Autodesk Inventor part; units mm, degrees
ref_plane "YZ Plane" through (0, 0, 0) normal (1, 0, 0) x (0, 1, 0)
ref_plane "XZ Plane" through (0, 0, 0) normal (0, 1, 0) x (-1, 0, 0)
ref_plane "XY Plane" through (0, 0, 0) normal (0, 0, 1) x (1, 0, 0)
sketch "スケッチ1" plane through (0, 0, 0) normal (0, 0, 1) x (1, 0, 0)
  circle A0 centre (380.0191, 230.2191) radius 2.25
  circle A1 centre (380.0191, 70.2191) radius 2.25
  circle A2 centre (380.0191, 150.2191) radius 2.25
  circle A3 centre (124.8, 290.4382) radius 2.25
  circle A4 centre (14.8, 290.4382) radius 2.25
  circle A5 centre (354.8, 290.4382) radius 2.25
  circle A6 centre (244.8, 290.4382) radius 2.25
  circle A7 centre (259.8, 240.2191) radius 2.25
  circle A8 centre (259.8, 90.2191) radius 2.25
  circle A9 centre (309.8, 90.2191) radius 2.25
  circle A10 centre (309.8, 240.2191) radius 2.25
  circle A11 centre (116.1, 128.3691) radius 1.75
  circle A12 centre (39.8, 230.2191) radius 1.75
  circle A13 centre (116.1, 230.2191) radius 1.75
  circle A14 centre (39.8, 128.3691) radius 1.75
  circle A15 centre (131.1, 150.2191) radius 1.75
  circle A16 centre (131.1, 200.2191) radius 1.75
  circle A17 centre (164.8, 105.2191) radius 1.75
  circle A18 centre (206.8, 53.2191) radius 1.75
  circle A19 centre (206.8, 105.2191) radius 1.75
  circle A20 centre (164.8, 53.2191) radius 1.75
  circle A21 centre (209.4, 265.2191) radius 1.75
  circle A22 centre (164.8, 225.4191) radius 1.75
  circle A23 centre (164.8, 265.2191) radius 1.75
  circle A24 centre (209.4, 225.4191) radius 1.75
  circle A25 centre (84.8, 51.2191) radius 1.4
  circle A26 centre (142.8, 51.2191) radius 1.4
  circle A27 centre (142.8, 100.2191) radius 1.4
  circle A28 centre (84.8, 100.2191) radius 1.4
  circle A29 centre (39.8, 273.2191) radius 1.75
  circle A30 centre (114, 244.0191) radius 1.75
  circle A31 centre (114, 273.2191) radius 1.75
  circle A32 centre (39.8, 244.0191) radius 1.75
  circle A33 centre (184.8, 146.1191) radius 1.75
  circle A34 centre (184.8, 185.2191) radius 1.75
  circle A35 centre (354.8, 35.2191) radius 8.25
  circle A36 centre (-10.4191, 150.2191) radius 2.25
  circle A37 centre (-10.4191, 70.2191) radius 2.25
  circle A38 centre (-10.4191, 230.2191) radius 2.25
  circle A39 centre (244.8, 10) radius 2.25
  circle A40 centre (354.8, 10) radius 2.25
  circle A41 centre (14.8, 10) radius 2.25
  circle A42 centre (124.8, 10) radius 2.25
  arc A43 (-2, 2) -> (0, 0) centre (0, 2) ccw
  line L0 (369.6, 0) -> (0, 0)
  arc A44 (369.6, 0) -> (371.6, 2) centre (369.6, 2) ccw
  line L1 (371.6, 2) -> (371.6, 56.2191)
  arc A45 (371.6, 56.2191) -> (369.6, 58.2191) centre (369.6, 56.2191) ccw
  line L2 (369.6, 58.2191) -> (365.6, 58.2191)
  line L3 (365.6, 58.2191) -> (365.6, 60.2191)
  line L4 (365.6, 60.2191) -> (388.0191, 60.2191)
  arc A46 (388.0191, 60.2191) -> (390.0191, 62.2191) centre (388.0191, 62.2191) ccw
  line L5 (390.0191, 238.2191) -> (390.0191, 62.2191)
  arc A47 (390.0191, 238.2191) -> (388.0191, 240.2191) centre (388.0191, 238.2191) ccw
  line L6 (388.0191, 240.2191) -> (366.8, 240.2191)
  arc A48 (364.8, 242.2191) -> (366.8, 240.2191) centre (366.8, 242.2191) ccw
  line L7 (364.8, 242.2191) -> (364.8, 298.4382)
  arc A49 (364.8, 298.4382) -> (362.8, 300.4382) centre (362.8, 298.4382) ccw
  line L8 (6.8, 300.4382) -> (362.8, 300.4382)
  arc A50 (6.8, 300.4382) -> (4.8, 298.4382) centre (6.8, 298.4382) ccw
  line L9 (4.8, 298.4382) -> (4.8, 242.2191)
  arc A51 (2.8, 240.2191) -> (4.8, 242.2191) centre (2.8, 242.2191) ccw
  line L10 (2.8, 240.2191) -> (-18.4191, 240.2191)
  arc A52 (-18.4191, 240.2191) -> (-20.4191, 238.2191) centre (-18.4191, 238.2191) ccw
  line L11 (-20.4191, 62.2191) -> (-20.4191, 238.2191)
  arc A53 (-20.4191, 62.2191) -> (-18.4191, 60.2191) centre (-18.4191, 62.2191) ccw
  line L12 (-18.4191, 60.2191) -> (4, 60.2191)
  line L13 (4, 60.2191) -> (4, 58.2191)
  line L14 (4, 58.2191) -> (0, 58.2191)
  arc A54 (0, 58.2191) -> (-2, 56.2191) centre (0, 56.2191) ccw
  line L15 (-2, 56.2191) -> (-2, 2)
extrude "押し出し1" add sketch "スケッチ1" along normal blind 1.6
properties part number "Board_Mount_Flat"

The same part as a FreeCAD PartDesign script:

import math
import FreeCAD as App
import Part
import Sketcher

V = App.Vector
Q = App.Units.Quantity

doc = App.newDocument("Part")
body = doc.addObject("PartDesign::Body", "Body")

sketch1 = doc.addObject("Sketcher::SketchObject", "Sketch")
body.addObject(sketch1)
sketch1.AttachmentSupport = (doc.XY_Plane, [""])
sketch1.MapMode = "FlatFace"
sketch1.addGeometry([
    Part.LineSegment(V(-2, 56.2191, 0), V(-2, 2, 0)),
    Part.ArcOfCircle(Part.Circle(V(0, 2, 0), V(0, 0, 1), 2), math.radians(180), math.radians(270)),
    Part.LineSegment(V(0, 0, 0), V(369.6, 0, 0)),
    Part.ArcOfCircle(Part.Circle(V(369.6, 2, 0), V(0, 0, 1), 2), math.radians(-90), math.radians(0)),
    Part.LineSegment(V(371.6, 2, 0), V(371.6, 56.2191, 0)),
    Part.ArcOfCircle(Part.Circle(V(369.6, 56.2191, 0), V(0, 0, 1), 2), math.radians(0), math.radians(90)),
    Part.LineSegment(V(369.6, 58.2191, 0), V(365.6, 58.2191, 0)),
    Part.LineSegment(V(365.6, 58.2191, 0), V(365.6, 60.2191, 0)),
    Part.LineSegment(V(365.6, 60.2191, 0), V(388.0191, 60.2191, 0)),
    Part.ArcOfCircle(Part.Circle(V(388.0191, 62.2191, 0), V(0, 0, 1), 2), math.radians(-90), math.radians(0)),
    Part.LineSegment(V(390.0191, 62.2191, 0), V(390.0191, 238.2191, 0)),
    Part.ArcOfCircle(Part.Circle(V(388.0191, 238.2191, 0), V(0, 0, 1), 2), math.radians(0), math.radians(90)),
    Part.LineSegment(V(388.0191, 240.2191, 0), V(366.8, 240.2191, 0)),
    Part.ArcOfCircle(Part.Circle(V(366.8, 242.2191, 0), V(0, 0, 1), 2), math.radians(180), math.radians(270)),
    Part.LineSegment(V(364.8, 242.2191, 0), V(364.8, 298.4382, 0)),
    Part.ArcOfCircle(Part.Circle(V(362.8, 298.4382, 0), V(0, 0, 1), 2), math.radians(0), math.radians(90)),
    Part.LineSegment(V(362.8, 300.4382, 0), V(6.8, 300.4382, 0)),
    Part.ArcOfCircle(Part.Circle(V(6.8, 298.4382, 0), V(0, 0, 1), 2), math.radians(90), math.radians(180)),
    Part.LineSegment(V(4.8, 298.4382, 0), V(4.8, 242.2191, 0)),
    Part.ArcOfCircle(Part.Circle(V(2.8, 242.2191, 0), V(0, 0, 1), 2), math.radians(-90), math.radians(0)),
    Part.LineSegment(V(2.8, 240.2191, 0), V(-18.4191, 240.2191, 0)),
    Part.ArcOfCircle(Part.Circle(V(-18.4191, 238.2191, 0), V(0, 0, 1), 2), math.radians(90), math.radians(180)),
    Part.LineSegment(V(-20.4191, 238.2191, 0), V(-20.4191, 62.2191, 0)),
    Part.ArcOfCircle(Part.Circle(V(-18.4191, 62.2191, 0), V(0, 0, 1), 2), math.radians(180), math.radians(270)),
    Part.LineSegment(V(-18.4191, 60.2191, 0), V(4, 60.2191, 0)),
    Part.LineSegment(V(4, 60.2191, 0), V(4, 58.2191, 0)),
    Part.LineSegment(V(4, 58.2191, 0), V(0, 58.2191, 0)),
    Part.ArcOfCircle(Part.Circle(V(0, 56.2191, 0), V(0, 0, 1), 2), math.radians(90), math.radians(180)),
    Part.Circle(V(14.8, 10, 0), V(0, 0, 1), 2.25),
    Part.Circle(V(-10.4191, 70.2191, 0), V(0, 0, 1), 2.25),
    Part.Circle(V(124.8, 10, 0), V(0, 0, 1), 2.25),
    Part.Circle(V(84.8, 51.2191, 0), V(0, 0, 1), 1.4),
    Part.Circle(V(142.8, 51.2191, 0), V(0, 0, 1), 1.4),
    Part.Circle(V(164.8, 53.2191, 0), V(0, 0, 1), 1.75),
    Part.Circle(V(39.8, 128.3691, 0), V(0, 0, 1), 1.75),
    Part.Circle(V(84.8, 100.2191, 0), V(0, 0, 1), 1.4),
    Part.Circle(V(142.8, 100.2191, 0), V(0, 0, 1), 1.4),
    Part.Circle(V(164.8, 105.2191, 0), V(0, 0, 1), 1.75),
    Part.Circle(V(116.1, 128.3691, 0), V(0, 0, 1), 1.75),
    Part.Circle(V(244.8, 10, 0), V(0, 0, 1), 2.25),
    Part.Circle(V(206.8, 53.2191, 0), V(0, 0, 1), 1.75),
    Part.Circle(V(354.8, 10, 0), V(0, 0, 1), 2.25),
    Part.Circle(V(354.8, 35.2191, 0), V(0, 0, 1), 8.25),
    Part.Circle(V(380.0191, 70.2191, 0), V(0, 0, 1), 2.25),
    Part.Circle(V(206.8, 105.2191, 0), V(0, 0, 1), 1.75),
    Part.Circle(V(259.8, 90.2191, 0), V(0, 0, 1), 2.25),
    Part.Circle(V(184.8, 146.1191, 0), V(0, 0, 1), 1.75),
    Part.Circle(V(309.8, 90.2191, 0), V(0, 0, 1), 2.25),
    Part.Circle(V(-10.4191, 150.2191, 0), V(0, 0, 1), 2.25),
    Part.Circle(V(131.1, 150.2191, 0), V(0, 0, 1), 1.75),
    Part.Circle(V(131.1, 200.2191, 0), V(0, 0, 1), 1.75),
    Part.Circle(V(-10.4191, 230.2191, 0), V(0, 0, 1), 2.25),
    Part.Circle(V(39.8, 230.2191, 0), V(0, 0, 1), 1.75),
    Part.Circle(V(39.8, 244.0191, 0), V(0, 0, 1), 1.75),
    Part.Circle(V(14.8, 290.4382, 0), V(0, 0, 1), 2.25),
    Part.Circle(V(39.8, 273.2191, 0), V(0, 0, 1), 1.75),
    Part.Circle(V(116.1, 230.2191, 0), V(0, 0, 1), 1.75),
    Part.Circle(V(114, 244.0191, 0), V(0, 0, 1), 1.75),
    Part.Circle(V(164.8, 225.4191, 0), V(0, 0, 1), 1.75),
    Part.Circle(V(114, 273.2191, 0), V(0, 0, 1), 1.75),
    Part.Circle(V(124.8, 290.4382, 0), V(0, 0, 1), 2.25),
    Part.Circle(V(164.8, 265.2191, 0), V(0, 0, 1), 1.75),
    Part.Circle(V(184.8, 185.2191, 0), V(0, 0, 1), 1.75),
    Part.Circle(V(380.0191, 150.2191, 0), V(0, 0, 1), 2.25),
    Part.Circle(V(209.4, 225.4191, 0), V(0, 0, 1), 1.75),
    Part.Circle(V(259.8, 240.2191, 0), V(0, 0, 1), 2.25),
    Part.Circle(V(209.4, 265.2191, 0), V(0, 0, 1), 1.75),
    Part.Circle(V(244.8, 290.4382, 0), V(0, 0, 1), 2.25),
    Part.Circle(V(309.8, 240.2191, 0), V(0, 0, 1), 2.25),
    Part.Circle(V(380.0191, 230.2191, 0), V(0, 0, 1), 2.25),
    Part.Circle(V(354.8, 290.4382, 0), V(0, 0, 1), 2.25),
], False)
sketch1.addConstraint([
    Sketcher.Constraint("Tangent", 0, 2, 1, 1),
    Sketcher.Constraint("Tangent", 1, 2, 2, 1),
    Sketcher.Constraint("Tangent", 2, 2, 3, 1),
    Sketcher.Constraint("Tangent", 3, 2, 4, 1),
    Sketcher.Constraint("Tangent", 4, 2, 5, 1),
    Sketcher.Constraint("Tangent", 5, 2, 6, 1),
    Sketcher.Constraint("Coincident", 6, 2, 7, 1),
    Sketcher.Constraint("Coincident", 7, 2, 8, 1),
    Sketcher.Constraint("Tangent", 8, 2, 9, 1),
    Sketcher.Constraint("Tangent", 9, 2, 10, 1),
    Sketcher.Constraint("Tangent", 10, 2, 11, 1),
    Sketcher.Constraint("Tangent", 11, 2, 12, 1),
    Sketcher.Constraint("Tangent", 12, 2, 13, 2),
    Sketcher.Constraint("Tangent", 13, 1, 14, 1),
    Sketcher.Constraint("Tangent", 14, 2, 15, 1),
    Sketcher.Constraint("Tangent", 15, 2, 16, 1),
    Sketcher.Constraint("Tangent", 16, 2, 17, 1),
    Sketcher.Constraint("Tangent", 17, 2, 18, 1),
    Sketcher.Constraint("Tangent", 18, 2, 19, 2),
    Sketcher.Constraint("Tangent", 19, 1, 20, 1),
    Sketcher.Constraint("Tangent", 20, 2, 21, 1),
    Sketcher.Constraint("Tangent", 21, 2, 22, 1),
    Sketcher.Constraint("Tangent", 22, 2, 23, 1),
    Sketcher.Constraint("Tangent", 23, 2, 24, 1),
    Sketcher.Constraint("Coincident", 24, 2, 25, 1),
    Sketcher.Constraint("Coincident", 25, 2, 26, 1),
    Sketcher.Constraint("Tangent", 26, 2, 27, 1),
    Sketcher.Constraint("Tangent", 27, 2, 0, 1),
    Sketcher.Constraint("Vertical", 0),
    Sketcher.Constraint("Horizontal", 2),
    Sketcher.Constraint("Vertical", 4),
    Sketcher.Constraint("Horizontal", 6),
    Sketcher.Constraint("Vertical", 7),
    Sketcher.Constraint("Horizontal", 8),
    Sketcher.Constraint("Vertical", 10),
    Sketcher.Constraint("Horizontal", 12),
    Sketcher.Constraint("Vertical", 14),
    Sketcher.Constraint("Horizontal", 16),
    Sketcher.Constraint("Vertical", 18),
    Sketcher.Constraint("Horizontal", 20),
    Sketcher.Constraint("Vertical", 22),
    Sketcher.Constraint("Horizontal", 24),
    Sketcher.Constraint("Vertical", 25),
    Sketcher.Constraint("Horizontal", 26),
    Sketcher.Constraint("Coincident", 1, 2, -1, 1),
    Sketcher.Constraint("Equal", 1, 3),
    Sketcher.Constraint("Equal", 3, 5),
    Sketcher.Constraint("Equal", 5, 9),
    Sketcher.Constraint("Equal", 9, 11),
    Sketcher.Constraint("Equal", 11, 13),
    Sketcher.Constraint("Equal", 13, 15),
    Sketcher.Constraint("Equal", 15, 17),
    Sketcher.Constraint("Equal", 17, 19),
    Sketcher.Constraint("Equal", 19, 21),
    Sketcher.Constraint("Equal", 21, 23),
    Sketcher.Constraint("Equal", 23, 27),
    Sketcher.Constraint("Equal", 28, 29),
    Sketcher.Constraint("Equal", 29, 30),
    Sketcher.Constraint("Equal", 31, 32),
    Sketcher.Constraint("Equal", 33, 34),
    Sketcher.Constraint("Equal", 32, 35),
    Sketcher.Constraint("Equal", 35, 36),
    Sketcher.Constraint("Equal", 34, 37),
    Sketcher.Constraint("Equal", 37, 38),
    Sketcher.Constraint("Equal", 30, 39),
    Sketcher.Constraint("Equal", 38, 40),
    Sketcher.Constraint("Equal", 39, 41),
    Sketcher.Constraint("Equal", 41, 43),
    Sketcher.Constraint("Equal", 40, 44),
    Sketcher.Constraint("Equal", 43, 45),
    Sketcher.Constraint("Equal", 44, 46),
    Sketcher.Constraint("Equal", 45, 47),
    Sketcher.Constraint("Equal", 47, 48),
    Sketcher.Constraint("Equal", 46, 49),
    Sketcher.Constraint("Equal", 49, 50),
    Sketcher.Constraint("Equal", 48, 51),
    Sketcher.Constraint("Equal", 50, 52),
    Sketcher.Constraint("Equal", 52, 53),
    Sketcher.Constraint("Equal", 51, 54),
    Sketcher.Constraint("Equal", 53, 55),
    Sketcher.Constraint("Equal", 55, 56),
    Sketcher.Constraint("Equal", 56, 57),
    Sketcher.Constraint("Equal", 57, 58),
    Sketcher.Constraint("Equal", 58, 59),
    Sketcher.Constraint("Equal", 54, 60),
    Sketcher.Constraint("Equal", 59, 61),
    Sketcher.Constraint("Equal", 61, 62),
    Sketcher.Constraint("Equal", 60, 63),
    Sketcher.Constraint("Equal", 62, 64),
    Sketcher.Constraint("Equal", 63, 65),
    Sketcher.Constraint("Equal", 64, 66),
    Sketcher.Constraint("Equal", 65, 67),
    Sketcher.Constraint("Equal", 67, 68),
    Sketcher.Constraint("Equal", 68, 69),
    Sketcher.Constraint("Equal", 69, 70),
    Sketcher.Constraint("Horizontal", 13, 3, 19, 3),
    Sketcher.Constraint("Horizontal", 9, 3, 23, 3),
    Sketcher.Constraint("Horizontal", 5, 3, 27, 3),
    Sketcher.Constraint("Horizontal", 28, 3, 30, 3),
    Sketcher.Constraint("Horizontal", 31, 3, 32, 3),
    Sketcher.Constraint("Horizontal", 35, 3, 36, 3),
    Sketcher.Constraint("Horizontal", 34, 3, 38, 3),
    Sketcher.Constraint("Horizontal", 30, 3, 39, 3),
    Sketcher.Constraint("Horizontal", 33, 3, 40, 3),
    Sketcher.Constraint("Horizontal", 39, 3, 41, 3),
    Sketcher.Constraint("Horizontal", 29, 3, 43, 3),
    Sketcher.Constraint("Horizontal", 37, 3, 44, 3),
    Sketcher.Constraint("Horizontal", 45, 3, 47, 3),
    Sketcher.Constraint("Horizontal", 48, 3, 49, 3),
    Sketcher.Constraint("Horizontal", 51, 3, 52, 3),
    Sketcher.Constraint("Horizontal", 52, 3, 56, 3),
    Sketcher.Constraint("Horizontal", 53, 3, 57, 3),
    Sketcher.Constraint("Horizontal", 55, 3, 59, 3),
    Sketcher.Constraint("Horizontal", 54, 3, 60, 3),
    Sketcher.Constraint("Horizontal", 49, 3, 63, 3),
    Sketcher.Constraint("Horizontal", 58, 3, 64, 3),
    Sketcher.Constraint("Horizontal", 61, 3, 66, 3),
    Sketcher.Constraint("Horizontal", 60, 3, 67, 3),
    Sketcher.Constraint("Horizontal", 65, 3, 68, 3),
    Sketcher.Constraint("Horizontal", 56, 3, 69, 3),
    Sketcher.Constraint("Horizontal", 67, 3, 70, 3),
    Sketcher.Constraint("Horizontal", 68, 3, 11, 2),
    Sketcher.Constraint("Vertical", 31, 3, 35, 3),
    Sketcher.Constraint("Vertical", 32, 3, 36, 3),
    Sketcher.Constraint("Vertical", 33, 3, 37, 3),
    Sketcher.Constraint("Vertical", 41, 3, 42, 3),
    Sketcher.Constraint("Vertical", 40, 3, 44, 3),
    Sketcher.Constraint("Vertical", 29, 3, 48, 3),
    Sketcher.Constraint("Vertical", 49, 3, 50, 3),
    Sketcher.Constraint("Vertical", 48, 3, 51, 3),
    Sketcher.Constraint("Vertical", 34, 3, 52, 3),
    Sketcher.Constraint("Vertical", 52, 3, 53, 3),
    Sketcher.Constraint("Vertical", 28, 3, 54, 3),
    Sketcher.Constraint("Vertical", 53, 3, 55, 3),
    Sketcher.Constraint("Vertical", 38, 3, 56, 3),
    Sketcher.Constraint("Vertical", 37, 3, 58, 3),
    Sketcher.Constraint("Vertical", 57, 3, 59, 3),
    Sketcher.Constraint("Vertical", 30, 3, 60, 3),
    Sketcher.Constraint("Vertical", 58, 3, 61, 3),
    Sketcher.Constraint("Vertical", 46, 3, 62, 3),
    Sketcher.Constraint("Vertical", 43, 3, 63, 3),
    Sketcher.Constraint("Vertical", 45, 3, 65, 3),
    Sketcher.Constraint("Vertical", 64, 3, 66, 3),
    Sketcher.Constraint("Vertical", 39, 3, 67, 3),
    Sketcher.Constraint("Vertical", 47, 3, 68, 3),
    Sketcher.Constraint("Vertical", 63, 3, 69, 3),
    Sketcher.Constraint("Vertical", 42, 3, 70, 3),
    Sketcher.Constraint("Equal", 12, 20),
    Sketcher.Constraint("Equal", 8, 24),
    Sketcher.Constraint("Equal", 6, 26),
    Sketcher.Constraint("Radius", 1, Q("2 mm")),
    Sketcher.Constraint("Diameter", 28, Q("4.5 mm")),
    Sketcher.Constraint("Diameter", 31, Q("2.8 mm")),
    Sketcher.Constraint("Diameter", 33, Q("3.5 mm")),
    Sketcher.Constraint("Diameter", 42, Q("16.5 mm")),
    Sketcher.Constraint("DistanceX", 6, 2, 6, 1, Q("4 mm")),
    Sketcher.Constraint("DistanceX", 16, 2, 16, 1, Q("356 mm")),
    Sketcher.Constraint("DistanceY", 7, 1, 7, 2, Q("2 mm")),
    Sketcher.Constraint("DistanceY", 10, 1, 10, 2, Q("176 mm")),
    Sketcher.Constraint("DistanceX", 2, 1, 2, 2, Q("369.6 mm")),
    Sketcher.Constraint("DistanceY", -1, 1, 28, 3, Q("10 mm")),
    Sketcher.Constraint("DistanceX", -1, 1, 57, 3, Q("114 mm")),
    Sketcher.Constraint("DistanceX", -1, 1, 28, 3, Q("14.8 mm")),
    Sketcher.Constraint("DistanceX", -1, 1, 30, 3, Q("124.8 mm")),
    Sketcher.Constraint("DistanceX", -1, 1, 31, 3, Q("84.8 mm")),
    Sketcher.Constraint("DistanceX", -1, 1, 32, 3, Q("142.8 mm")),
    Sketcher.Constraint("DistanceX", -1, 1, 33, 3, Q("164.8 mm")),
    Sketcher.Constraint("DistanceX", -1, 1, 34, 3, Q("39.8 mm")),
    Sketcher.Constraint("DistanceX", -1, 1, 38, 3, Q("116.1 mm")),
    Sketcher.Constraint("DistanceX", -1, 1, 39, 3, Q("244.8 mm")),
    Sketcher.Constraint("DistanceX", -1, 1, 40, 3, Q("206.8 mm")),
    Sketcher.Constraint("DistanceX", -1, 1, 41, 3, Q("354.8 mm")),
    Sketcher.Constraint("DistanceX", -1, 1, 45, 3, Q("259.8 mm")),
    Sketcher.Constraint("DistanceX", -1, 1, 46, 3, Q("184.8 mm")),
    Sketcher.Constraint("DistanceX", -1, 1, 47, 3, Q("309.8 mm")),
    Sketcher.Constraint("DistanceX", -1, 1, 49, 3, Q("131.1 mm")),
    Sketcher.Constraint("DistanceX", -1, 1, 64, 3, Q("209.4 mm")),
    Sketcher.Constraint("DistanceX", 8, 1, 8, 2, Q("22.419 mm")),
    Sketcher.Constraint("DistanceY", 0, 2, 0, 1, Q("54.219 mm")),
    Sketcher.Constraint("DistanceY", 14, 1, 14, 2, Q("56.219 mm")),
    Sketcher.Constraint("DistanceX", 29, 3, -1, 1, Q("10.419 mm")),
    Sketcher.Constraint("DistanceY", -1, 1, 29, 3, Q("70.219 mm")),
    Sketcher.Constraint("DistanceY", -1, 1, 31, 3, Q("51.219 mm")),
    Sketcher.Constraint("DistanceY", -1, 1, 33, 3, Q("53.219 mm")),
    Sketcher.Constraint("DistanceY", -1, 1, 34, 3, Q("128.369 mm")),
    Sketcher.Constraint("DistanceY", -1, 1, 35, 3, Q("100.219 mm")),
    Sketcher.Constraint("DistanceY", -1, 1, 37, 3, Q("105.219 mm")),
    Sketcher.Constraint("DistanceY", -1, 1, 42, 3, Q("35.219 mm")),
    Sketcher.Constraint("DistanceX", -1, 1, 43, 3, Q("380.019 mm")),
    Sketcher.Constraint("DistanceY", -1, 1, 45, 3, Q("90.219 mm")),
    Sketcher.Constraint("DistanceY", -1, 1, 46, 3, Q("146.119 mm")),
    Sketcher.Constraint("DistanceY", -1, 1, 48, 3, Q("150.219 mm")),
    Sketcher.Constraint("DistanceY", -1, 1, 50, 3, Q("200.219 mm")),
    Sketcher.Constraint("DistanceY", -1, 1, 51, 3, Q("230.219 mm")),
    Sketcher.Constraint("DistanceY", -1, 1, 53, 3, Q("244.019 mm")),
    Sketcher.Constraint("DistanceY", -1, 1, 55, 3, Q("273.219 mm")),
    Sketcher.Constraint("DistanceY", -1, 1, 58, 3, Q("225.419 mm")),
    Sketcher.Constraint("DistanceY", -1, 1, 61, 3, Q("265.219 mm")),
    Sketcher.Constraint("DistanceY", -1, 1, 62, 3, Q("185.219 mm")),
    Sketcher.Constraint("DistanceY", -1, 1, 54, 3, Q("290.4382 mm")),
])
pad1 = doc.addObject("PartDesign::Pad", "Pad")
body.addObject(pad1)
pad1.Profile = sketch1
pad1.Length = 1.6

doc.recompute()
